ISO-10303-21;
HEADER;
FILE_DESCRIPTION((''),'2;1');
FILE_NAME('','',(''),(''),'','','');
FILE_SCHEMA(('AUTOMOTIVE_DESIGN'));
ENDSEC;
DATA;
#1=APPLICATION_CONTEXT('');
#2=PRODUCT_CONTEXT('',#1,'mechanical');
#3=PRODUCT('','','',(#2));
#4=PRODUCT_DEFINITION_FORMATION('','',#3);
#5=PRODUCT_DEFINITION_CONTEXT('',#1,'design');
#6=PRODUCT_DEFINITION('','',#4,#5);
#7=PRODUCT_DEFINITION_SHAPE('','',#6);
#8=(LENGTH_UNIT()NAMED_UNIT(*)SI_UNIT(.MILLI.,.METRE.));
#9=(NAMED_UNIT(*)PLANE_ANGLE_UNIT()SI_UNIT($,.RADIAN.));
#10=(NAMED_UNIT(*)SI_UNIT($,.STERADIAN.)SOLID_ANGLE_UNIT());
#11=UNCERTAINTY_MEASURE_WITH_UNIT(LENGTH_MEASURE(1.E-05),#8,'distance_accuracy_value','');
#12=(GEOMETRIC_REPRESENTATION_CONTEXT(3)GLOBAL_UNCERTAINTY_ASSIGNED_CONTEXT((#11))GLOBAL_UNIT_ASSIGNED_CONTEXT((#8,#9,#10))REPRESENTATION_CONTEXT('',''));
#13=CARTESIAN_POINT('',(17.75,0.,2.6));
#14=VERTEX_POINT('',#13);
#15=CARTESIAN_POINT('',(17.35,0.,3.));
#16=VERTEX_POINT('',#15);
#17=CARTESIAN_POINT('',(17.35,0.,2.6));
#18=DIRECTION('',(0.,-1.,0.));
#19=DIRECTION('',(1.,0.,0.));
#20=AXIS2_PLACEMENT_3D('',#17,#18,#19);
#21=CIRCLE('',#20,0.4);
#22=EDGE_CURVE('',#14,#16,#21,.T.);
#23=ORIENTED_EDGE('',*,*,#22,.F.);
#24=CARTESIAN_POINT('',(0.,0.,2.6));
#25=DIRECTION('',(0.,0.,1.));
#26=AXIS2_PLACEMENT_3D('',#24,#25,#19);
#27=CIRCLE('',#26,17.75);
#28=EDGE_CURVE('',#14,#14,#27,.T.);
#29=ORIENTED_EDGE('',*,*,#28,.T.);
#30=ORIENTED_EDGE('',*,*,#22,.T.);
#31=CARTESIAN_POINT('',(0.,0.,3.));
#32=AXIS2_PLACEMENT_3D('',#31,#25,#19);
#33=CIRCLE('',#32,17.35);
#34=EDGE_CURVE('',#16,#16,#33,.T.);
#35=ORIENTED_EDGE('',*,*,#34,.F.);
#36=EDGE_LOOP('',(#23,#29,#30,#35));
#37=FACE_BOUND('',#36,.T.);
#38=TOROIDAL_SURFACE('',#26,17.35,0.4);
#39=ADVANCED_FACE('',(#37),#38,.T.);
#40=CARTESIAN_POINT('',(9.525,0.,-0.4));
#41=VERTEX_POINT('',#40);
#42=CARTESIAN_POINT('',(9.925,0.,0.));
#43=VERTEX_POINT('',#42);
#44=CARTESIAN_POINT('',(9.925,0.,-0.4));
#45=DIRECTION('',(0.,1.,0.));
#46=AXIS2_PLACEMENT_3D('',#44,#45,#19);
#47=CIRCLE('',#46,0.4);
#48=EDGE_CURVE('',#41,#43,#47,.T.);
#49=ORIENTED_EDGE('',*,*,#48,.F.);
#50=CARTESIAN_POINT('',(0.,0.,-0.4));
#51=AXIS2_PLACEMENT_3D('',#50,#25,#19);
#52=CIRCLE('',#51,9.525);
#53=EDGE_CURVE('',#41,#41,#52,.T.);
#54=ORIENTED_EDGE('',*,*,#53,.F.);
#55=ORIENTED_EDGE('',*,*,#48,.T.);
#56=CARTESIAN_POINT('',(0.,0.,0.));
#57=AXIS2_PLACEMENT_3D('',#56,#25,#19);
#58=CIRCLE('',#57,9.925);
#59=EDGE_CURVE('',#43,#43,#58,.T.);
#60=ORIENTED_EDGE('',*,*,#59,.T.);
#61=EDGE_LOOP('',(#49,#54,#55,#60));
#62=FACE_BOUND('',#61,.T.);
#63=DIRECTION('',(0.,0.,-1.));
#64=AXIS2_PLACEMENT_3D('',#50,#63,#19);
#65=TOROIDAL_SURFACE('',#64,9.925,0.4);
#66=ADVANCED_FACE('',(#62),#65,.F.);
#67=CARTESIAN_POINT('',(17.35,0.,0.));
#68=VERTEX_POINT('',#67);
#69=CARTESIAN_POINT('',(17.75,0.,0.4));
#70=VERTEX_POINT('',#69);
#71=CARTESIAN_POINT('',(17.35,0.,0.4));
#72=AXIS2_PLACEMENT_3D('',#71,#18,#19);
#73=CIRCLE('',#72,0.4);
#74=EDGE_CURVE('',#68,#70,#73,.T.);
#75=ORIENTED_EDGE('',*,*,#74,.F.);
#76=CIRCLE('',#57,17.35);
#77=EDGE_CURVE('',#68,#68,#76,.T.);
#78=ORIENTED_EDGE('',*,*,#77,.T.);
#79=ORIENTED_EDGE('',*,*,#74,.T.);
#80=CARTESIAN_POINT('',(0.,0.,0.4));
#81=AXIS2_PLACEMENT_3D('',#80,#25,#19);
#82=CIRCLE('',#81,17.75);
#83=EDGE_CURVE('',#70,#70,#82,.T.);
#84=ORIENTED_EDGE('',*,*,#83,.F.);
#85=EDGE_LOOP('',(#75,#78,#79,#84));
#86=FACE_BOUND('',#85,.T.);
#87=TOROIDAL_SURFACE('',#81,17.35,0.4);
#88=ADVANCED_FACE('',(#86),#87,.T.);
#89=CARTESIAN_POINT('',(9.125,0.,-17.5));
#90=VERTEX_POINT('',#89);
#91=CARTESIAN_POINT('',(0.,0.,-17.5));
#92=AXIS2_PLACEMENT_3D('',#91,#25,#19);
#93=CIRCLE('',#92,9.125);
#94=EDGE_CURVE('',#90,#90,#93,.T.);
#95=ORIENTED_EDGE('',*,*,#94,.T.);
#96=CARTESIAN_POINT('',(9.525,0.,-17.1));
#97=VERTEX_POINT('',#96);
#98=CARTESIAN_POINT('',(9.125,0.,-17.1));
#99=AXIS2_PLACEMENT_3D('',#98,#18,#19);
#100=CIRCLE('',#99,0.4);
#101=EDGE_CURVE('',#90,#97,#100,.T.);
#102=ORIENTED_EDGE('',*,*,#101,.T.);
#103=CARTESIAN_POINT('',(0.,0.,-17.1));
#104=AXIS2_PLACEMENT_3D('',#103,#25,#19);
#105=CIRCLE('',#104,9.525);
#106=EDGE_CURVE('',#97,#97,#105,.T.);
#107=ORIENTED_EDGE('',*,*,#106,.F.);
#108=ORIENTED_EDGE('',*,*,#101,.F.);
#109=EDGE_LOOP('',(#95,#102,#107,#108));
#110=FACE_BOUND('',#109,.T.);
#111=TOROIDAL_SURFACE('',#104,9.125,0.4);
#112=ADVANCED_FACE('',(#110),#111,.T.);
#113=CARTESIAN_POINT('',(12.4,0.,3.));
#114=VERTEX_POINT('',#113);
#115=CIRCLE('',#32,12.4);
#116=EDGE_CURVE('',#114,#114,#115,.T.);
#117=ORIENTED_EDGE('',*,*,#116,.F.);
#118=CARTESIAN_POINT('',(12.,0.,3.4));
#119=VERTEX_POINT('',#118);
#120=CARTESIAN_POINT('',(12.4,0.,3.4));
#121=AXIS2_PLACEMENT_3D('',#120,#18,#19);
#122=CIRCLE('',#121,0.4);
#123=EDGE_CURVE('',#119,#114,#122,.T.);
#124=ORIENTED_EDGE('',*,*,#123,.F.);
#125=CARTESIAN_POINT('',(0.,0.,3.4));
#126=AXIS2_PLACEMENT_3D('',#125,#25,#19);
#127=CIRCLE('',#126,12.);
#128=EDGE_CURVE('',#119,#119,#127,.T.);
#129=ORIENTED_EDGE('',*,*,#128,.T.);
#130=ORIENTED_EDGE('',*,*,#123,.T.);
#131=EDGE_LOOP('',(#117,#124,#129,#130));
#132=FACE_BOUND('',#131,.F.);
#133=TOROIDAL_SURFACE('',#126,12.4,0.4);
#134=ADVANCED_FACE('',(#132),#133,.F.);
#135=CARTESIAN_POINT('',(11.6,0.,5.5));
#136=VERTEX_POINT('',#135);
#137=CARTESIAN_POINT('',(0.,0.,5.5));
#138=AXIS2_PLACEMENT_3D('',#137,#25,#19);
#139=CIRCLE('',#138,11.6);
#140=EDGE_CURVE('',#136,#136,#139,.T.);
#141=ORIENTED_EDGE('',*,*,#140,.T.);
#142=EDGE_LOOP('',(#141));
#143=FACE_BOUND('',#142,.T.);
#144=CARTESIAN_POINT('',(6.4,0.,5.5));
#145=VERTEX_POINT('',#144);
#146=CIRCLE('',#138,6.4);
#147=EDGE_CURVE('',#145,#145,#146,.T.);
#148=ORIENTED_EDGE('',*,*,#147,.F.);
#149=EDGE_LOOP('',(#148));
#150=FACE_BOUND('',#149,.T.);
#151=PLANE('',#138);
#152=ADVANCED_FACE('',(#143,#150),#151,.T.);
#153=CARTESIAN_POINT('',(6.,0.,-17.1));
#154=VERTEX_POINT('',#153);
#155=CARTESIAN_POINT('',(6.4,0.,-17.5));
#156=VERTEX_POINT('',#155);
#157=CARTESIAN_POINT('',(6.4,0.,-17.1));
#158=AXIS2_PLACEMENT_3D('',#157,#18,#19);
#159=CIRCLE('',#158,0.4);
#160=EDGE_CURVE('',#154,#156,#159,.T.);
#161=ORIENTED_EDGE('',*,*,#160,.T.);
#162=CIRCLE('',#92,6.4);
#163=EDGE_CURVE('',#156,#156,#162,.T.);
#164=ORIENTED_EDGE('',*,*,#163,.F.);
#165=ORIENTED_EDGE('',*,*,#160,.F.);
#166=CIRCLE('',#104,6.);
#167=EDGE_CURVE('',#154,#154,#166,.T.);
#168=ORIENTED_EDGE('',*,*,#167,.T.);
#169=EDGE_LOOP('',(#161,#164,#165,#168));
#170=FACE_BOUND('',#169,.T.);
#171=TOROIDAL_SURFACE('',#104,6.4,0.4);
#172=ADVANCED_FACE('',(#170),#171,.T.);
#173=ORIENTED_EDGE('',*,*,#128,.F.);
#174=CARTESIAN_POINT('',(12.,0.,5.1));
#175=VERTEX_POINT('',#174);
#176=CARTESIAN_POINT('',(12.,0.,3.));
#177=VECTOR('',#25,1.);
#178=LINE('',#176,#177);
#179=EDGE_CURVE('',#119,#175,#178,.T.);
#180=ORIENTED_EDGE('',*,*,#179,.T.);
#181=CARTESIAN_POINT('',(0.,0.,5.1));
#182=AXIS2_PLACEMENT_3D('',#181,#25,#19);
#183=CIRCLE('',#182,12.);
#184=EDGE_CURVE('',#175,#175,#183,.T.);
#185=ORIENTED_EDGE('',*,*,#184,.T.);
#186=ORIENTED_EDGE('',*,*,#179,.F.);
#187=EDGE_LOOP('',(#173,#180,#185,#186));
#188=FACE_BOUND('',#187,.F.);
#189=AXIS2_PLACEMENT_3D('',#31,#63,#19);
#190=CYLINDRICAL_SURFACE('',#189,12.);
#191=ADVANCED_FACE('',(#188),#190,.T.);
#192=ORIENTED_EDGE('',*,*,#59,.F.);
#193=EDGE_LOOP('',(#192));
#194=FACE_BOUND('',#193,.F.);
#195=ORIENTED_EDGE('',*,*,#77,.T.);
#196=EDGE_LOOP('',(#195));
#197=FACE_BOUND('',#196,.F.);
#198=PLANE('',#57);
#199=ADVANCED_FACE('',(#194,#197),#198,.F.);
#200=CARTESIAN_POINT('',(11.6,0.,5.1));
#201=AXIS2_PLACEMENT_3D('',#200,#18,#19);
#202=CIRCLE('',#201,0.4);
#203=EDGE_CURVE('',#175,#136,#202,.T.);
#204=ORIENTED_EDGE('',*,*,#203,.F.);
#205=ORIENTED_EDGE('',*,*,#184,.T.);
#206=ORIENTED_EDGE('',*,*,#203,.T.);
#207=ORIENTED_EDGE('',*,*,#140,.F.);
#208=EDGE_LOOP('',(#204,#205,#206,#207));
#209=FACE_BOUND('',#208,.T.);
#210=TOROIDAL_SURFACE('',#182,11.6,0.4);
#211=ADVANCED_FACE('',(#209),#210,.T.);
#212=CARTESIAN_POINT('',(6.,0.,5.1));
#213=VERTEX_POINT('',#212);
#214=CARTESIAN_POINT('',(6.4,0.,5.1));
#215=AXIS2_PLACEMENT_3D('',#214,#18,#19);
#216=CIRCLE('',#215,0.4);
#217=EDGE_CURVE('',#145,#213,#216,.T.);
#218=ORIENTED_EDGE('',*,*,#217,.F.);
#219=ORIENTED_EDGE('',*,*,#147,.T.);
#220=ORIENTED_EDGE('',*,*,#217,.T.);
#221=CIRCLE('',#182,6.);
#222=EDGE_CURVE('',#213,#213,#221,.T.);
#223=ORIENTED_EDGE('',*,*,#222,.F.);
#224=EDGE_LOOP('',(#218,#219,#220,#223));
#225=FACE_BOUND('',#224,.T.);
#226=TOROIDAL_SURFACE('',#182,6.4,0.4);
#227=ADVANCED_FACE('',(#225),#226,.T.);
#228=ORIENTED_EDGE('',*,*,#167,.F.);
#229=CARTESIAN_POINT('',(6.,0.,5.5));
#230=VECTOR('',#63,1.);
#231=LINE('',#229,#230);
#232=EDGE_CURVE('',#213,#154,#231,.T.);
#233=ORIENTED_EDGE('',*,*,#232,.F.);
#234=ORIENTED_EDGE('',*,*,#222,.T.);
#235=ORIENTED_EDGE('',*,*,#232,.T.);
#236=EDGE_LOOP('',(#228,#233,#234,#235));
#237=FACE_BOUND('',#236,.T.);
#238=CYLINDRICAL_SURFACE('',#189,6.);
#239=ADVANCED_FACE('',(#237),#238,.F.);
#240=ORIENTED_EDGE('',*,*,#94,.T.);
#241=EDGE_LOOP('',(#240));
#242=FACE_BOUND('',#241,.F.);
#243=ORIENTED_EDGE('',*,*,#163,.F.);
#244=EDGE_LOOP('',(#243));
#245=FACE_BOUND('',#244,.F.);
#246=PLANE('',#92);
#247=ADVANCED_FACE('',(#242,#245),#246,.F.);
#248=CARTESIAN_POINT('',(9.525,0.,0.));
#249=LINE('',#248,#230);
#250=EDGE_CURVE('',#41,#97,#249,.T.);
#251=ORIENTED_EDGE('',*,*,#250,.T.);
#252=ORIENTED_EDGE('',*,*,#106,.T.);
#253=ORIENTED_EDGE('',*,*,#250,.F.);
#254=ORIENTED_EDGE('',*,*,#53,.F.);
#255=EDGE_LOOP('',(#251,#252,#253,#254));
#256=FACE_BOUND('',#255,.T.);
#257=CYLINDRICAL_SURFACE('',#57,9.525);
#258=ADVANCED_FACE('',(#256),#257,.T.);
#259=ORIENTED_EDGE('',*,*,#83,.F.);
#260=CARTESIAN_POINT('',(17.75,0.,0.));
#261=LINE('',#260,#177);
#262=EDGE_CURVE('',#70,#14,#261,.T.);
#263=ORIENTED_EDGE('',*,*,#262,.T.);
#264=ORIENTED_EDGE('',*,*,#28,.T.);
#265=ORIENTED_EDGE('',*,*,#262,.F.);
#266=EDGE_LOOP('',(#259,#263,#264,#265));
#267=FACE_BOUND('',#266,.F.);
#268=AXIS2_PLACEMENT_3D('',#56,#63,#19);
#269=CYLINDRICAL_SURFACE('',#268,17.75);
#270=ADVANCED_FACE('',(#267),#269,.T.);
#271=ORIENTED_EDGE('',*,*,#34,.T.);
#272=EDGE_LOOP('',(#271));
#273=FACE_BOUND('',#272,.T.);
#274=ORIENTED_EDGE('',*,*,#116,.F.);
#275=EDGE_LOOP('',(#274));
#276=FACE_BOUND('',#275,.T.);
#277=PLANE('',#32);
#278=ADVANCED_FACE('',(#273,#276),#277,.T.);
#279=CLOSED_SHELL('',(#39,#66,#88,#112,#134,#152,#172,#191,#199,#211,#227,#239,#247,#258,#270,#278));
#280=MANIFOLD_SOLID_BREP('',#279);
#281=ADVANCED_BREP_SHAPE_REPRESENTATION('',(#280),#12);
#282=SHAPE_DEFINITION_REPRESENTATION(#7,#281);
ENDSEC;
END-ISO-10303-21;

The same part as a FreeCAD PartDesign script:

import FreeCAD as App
import Part
import Sketcher
Q = App.Units.Quantity


def edges_at(feature, points):
    """Names of the edges that pass closest to the given points."""
    edges = feature.Shape.Edges
    near = lambda p: min(range(len(edges)), key=lambda i: edges[i].distToShape(Part.Vertex(*p))[0])
    return sorted({f"Edge{near(p) + 1}" for p in points})

doc = App.newDocument("Part")
body = doc.addObject("PartDesign::Body", "Body")

sketch1 = doc.addObject("Sketcher::SketchObject", "Sketch")
body.addObject(sketch1)
sketch1.AttachmentSupport = (doc.XY_Plane, [""])
sketch1.MapMode = "FlatFace"
sketch1.addGeometry([
    Part.Circle(App.Vector(0, 0, 0), App.Vector(0, 0, 1), 9.525),
    Part.Circle(App.Vector(0, 0, 0), App.Vector(0, 0, 1), 6),
], False)
sketch1.addConstraint([
    Sketcher.Constraint("Coincident", 0, 3, -1, 1),
    Sketcher.Constraint("Coincident", 1, 3, -1, 1),
    Sketcher.Constraint("Diameter", 1, Q("12 mm")),
    Sketcher.Constraint("Diameter", 0, Q("19.05 mm")),
])
pad1 = doc.addObject("PartDesign::Pad", "Pad")
body.addObject(pad1)
pad1.Profile = sketch1
pad1.Length = 17.5
pad1.Reversed = True

sketch2 = doc.addObject("Sketcher::SketchObject", "Sketch001")
body.addObject(sketch2)
sketch2.AttachmentSupport = (doc.XY_Plane, [""])
sketch2.MapMode = "FlatFace"
sketch2.addGeometry([
    Part.Circle(App.Vector(0, 0, 0), App.Vector(0, 0, 1), 17.75),
    Part.Circle(App.Vector(0, 0, 0), App.Vector(0, 0, 1), 6),
], False)
sketch2.addConstraint([
    Sketcher.Constraint("Coincident", 0, 3, -1, 1),
    Sketcher.Constraint("Coincident", 1, 3, -1, 1),
    Sketcher.Constraint("Diameter", 1, Q("12 mm")),
    Sketcher.Constraint("Diameter", 0, Q("35.5 mm")),
])
pad2 = doc.addObject("PartDesign::Pad", "Pad001")
body.addObject(pad2)
pad2.Profile = sketch2
pad2.Length = 3

sketch3 = doc.addObject("Sketcher::SketchObject", "Sketch002")
body.addObject(sketch3)
sketch3.AttachmentSupport = (doc.XY_Plane, [""])
sketch3.MapMode = "FlatFace"
sketch3.AttachmentOffset = App.Placement(App.Vector(0, 0, 3), App.Rotation())
sketch3.addGeometry([
    Part.Circle(App.Vector(0, 0, 0), App.Vector(0, 0, 1), 12),
    Part.Circle(App.Vector(0, 0, 0), App.Vector(0, 0, 1), 6),
], False)
sketch3.addConstraint([
    Sketcher.Constraint("Coincident", 0, 3, -1, 1),
    Sketcher.Constraint("Coincident", 1, 3, -1, 1),
    Sketcher.Constraint("Diameter", 0, Q("24 mm")),
    Sketcher.Constraint("Diameter", 1, Q("12 mm")),
])
pad3 = doc.addObject("PartDesign::Pad", "Pad002")
body.addObject(pad3)
pad3.Profile = sketch3
pad3.Length = 2.5
doc.recompute()

fillet = doc.addObject("PartDesign::Fillet", "Fillet")
body.addObject(fillet)
fillet.Base = (pad3, edges_at(pad3, [
    (-12, 0, 5.5),
    (-6, 0, 5.5),
    (-17.75, 0, 3),
    (-12, 0, 3),
    (-17.75, 0, 0),
    (-9.525, 0, 0),
    (-9.525, 0, -17.5),
    (-6, 0, -17.5),
]))
fillet.Radius = 0.4

doc.recompute()
